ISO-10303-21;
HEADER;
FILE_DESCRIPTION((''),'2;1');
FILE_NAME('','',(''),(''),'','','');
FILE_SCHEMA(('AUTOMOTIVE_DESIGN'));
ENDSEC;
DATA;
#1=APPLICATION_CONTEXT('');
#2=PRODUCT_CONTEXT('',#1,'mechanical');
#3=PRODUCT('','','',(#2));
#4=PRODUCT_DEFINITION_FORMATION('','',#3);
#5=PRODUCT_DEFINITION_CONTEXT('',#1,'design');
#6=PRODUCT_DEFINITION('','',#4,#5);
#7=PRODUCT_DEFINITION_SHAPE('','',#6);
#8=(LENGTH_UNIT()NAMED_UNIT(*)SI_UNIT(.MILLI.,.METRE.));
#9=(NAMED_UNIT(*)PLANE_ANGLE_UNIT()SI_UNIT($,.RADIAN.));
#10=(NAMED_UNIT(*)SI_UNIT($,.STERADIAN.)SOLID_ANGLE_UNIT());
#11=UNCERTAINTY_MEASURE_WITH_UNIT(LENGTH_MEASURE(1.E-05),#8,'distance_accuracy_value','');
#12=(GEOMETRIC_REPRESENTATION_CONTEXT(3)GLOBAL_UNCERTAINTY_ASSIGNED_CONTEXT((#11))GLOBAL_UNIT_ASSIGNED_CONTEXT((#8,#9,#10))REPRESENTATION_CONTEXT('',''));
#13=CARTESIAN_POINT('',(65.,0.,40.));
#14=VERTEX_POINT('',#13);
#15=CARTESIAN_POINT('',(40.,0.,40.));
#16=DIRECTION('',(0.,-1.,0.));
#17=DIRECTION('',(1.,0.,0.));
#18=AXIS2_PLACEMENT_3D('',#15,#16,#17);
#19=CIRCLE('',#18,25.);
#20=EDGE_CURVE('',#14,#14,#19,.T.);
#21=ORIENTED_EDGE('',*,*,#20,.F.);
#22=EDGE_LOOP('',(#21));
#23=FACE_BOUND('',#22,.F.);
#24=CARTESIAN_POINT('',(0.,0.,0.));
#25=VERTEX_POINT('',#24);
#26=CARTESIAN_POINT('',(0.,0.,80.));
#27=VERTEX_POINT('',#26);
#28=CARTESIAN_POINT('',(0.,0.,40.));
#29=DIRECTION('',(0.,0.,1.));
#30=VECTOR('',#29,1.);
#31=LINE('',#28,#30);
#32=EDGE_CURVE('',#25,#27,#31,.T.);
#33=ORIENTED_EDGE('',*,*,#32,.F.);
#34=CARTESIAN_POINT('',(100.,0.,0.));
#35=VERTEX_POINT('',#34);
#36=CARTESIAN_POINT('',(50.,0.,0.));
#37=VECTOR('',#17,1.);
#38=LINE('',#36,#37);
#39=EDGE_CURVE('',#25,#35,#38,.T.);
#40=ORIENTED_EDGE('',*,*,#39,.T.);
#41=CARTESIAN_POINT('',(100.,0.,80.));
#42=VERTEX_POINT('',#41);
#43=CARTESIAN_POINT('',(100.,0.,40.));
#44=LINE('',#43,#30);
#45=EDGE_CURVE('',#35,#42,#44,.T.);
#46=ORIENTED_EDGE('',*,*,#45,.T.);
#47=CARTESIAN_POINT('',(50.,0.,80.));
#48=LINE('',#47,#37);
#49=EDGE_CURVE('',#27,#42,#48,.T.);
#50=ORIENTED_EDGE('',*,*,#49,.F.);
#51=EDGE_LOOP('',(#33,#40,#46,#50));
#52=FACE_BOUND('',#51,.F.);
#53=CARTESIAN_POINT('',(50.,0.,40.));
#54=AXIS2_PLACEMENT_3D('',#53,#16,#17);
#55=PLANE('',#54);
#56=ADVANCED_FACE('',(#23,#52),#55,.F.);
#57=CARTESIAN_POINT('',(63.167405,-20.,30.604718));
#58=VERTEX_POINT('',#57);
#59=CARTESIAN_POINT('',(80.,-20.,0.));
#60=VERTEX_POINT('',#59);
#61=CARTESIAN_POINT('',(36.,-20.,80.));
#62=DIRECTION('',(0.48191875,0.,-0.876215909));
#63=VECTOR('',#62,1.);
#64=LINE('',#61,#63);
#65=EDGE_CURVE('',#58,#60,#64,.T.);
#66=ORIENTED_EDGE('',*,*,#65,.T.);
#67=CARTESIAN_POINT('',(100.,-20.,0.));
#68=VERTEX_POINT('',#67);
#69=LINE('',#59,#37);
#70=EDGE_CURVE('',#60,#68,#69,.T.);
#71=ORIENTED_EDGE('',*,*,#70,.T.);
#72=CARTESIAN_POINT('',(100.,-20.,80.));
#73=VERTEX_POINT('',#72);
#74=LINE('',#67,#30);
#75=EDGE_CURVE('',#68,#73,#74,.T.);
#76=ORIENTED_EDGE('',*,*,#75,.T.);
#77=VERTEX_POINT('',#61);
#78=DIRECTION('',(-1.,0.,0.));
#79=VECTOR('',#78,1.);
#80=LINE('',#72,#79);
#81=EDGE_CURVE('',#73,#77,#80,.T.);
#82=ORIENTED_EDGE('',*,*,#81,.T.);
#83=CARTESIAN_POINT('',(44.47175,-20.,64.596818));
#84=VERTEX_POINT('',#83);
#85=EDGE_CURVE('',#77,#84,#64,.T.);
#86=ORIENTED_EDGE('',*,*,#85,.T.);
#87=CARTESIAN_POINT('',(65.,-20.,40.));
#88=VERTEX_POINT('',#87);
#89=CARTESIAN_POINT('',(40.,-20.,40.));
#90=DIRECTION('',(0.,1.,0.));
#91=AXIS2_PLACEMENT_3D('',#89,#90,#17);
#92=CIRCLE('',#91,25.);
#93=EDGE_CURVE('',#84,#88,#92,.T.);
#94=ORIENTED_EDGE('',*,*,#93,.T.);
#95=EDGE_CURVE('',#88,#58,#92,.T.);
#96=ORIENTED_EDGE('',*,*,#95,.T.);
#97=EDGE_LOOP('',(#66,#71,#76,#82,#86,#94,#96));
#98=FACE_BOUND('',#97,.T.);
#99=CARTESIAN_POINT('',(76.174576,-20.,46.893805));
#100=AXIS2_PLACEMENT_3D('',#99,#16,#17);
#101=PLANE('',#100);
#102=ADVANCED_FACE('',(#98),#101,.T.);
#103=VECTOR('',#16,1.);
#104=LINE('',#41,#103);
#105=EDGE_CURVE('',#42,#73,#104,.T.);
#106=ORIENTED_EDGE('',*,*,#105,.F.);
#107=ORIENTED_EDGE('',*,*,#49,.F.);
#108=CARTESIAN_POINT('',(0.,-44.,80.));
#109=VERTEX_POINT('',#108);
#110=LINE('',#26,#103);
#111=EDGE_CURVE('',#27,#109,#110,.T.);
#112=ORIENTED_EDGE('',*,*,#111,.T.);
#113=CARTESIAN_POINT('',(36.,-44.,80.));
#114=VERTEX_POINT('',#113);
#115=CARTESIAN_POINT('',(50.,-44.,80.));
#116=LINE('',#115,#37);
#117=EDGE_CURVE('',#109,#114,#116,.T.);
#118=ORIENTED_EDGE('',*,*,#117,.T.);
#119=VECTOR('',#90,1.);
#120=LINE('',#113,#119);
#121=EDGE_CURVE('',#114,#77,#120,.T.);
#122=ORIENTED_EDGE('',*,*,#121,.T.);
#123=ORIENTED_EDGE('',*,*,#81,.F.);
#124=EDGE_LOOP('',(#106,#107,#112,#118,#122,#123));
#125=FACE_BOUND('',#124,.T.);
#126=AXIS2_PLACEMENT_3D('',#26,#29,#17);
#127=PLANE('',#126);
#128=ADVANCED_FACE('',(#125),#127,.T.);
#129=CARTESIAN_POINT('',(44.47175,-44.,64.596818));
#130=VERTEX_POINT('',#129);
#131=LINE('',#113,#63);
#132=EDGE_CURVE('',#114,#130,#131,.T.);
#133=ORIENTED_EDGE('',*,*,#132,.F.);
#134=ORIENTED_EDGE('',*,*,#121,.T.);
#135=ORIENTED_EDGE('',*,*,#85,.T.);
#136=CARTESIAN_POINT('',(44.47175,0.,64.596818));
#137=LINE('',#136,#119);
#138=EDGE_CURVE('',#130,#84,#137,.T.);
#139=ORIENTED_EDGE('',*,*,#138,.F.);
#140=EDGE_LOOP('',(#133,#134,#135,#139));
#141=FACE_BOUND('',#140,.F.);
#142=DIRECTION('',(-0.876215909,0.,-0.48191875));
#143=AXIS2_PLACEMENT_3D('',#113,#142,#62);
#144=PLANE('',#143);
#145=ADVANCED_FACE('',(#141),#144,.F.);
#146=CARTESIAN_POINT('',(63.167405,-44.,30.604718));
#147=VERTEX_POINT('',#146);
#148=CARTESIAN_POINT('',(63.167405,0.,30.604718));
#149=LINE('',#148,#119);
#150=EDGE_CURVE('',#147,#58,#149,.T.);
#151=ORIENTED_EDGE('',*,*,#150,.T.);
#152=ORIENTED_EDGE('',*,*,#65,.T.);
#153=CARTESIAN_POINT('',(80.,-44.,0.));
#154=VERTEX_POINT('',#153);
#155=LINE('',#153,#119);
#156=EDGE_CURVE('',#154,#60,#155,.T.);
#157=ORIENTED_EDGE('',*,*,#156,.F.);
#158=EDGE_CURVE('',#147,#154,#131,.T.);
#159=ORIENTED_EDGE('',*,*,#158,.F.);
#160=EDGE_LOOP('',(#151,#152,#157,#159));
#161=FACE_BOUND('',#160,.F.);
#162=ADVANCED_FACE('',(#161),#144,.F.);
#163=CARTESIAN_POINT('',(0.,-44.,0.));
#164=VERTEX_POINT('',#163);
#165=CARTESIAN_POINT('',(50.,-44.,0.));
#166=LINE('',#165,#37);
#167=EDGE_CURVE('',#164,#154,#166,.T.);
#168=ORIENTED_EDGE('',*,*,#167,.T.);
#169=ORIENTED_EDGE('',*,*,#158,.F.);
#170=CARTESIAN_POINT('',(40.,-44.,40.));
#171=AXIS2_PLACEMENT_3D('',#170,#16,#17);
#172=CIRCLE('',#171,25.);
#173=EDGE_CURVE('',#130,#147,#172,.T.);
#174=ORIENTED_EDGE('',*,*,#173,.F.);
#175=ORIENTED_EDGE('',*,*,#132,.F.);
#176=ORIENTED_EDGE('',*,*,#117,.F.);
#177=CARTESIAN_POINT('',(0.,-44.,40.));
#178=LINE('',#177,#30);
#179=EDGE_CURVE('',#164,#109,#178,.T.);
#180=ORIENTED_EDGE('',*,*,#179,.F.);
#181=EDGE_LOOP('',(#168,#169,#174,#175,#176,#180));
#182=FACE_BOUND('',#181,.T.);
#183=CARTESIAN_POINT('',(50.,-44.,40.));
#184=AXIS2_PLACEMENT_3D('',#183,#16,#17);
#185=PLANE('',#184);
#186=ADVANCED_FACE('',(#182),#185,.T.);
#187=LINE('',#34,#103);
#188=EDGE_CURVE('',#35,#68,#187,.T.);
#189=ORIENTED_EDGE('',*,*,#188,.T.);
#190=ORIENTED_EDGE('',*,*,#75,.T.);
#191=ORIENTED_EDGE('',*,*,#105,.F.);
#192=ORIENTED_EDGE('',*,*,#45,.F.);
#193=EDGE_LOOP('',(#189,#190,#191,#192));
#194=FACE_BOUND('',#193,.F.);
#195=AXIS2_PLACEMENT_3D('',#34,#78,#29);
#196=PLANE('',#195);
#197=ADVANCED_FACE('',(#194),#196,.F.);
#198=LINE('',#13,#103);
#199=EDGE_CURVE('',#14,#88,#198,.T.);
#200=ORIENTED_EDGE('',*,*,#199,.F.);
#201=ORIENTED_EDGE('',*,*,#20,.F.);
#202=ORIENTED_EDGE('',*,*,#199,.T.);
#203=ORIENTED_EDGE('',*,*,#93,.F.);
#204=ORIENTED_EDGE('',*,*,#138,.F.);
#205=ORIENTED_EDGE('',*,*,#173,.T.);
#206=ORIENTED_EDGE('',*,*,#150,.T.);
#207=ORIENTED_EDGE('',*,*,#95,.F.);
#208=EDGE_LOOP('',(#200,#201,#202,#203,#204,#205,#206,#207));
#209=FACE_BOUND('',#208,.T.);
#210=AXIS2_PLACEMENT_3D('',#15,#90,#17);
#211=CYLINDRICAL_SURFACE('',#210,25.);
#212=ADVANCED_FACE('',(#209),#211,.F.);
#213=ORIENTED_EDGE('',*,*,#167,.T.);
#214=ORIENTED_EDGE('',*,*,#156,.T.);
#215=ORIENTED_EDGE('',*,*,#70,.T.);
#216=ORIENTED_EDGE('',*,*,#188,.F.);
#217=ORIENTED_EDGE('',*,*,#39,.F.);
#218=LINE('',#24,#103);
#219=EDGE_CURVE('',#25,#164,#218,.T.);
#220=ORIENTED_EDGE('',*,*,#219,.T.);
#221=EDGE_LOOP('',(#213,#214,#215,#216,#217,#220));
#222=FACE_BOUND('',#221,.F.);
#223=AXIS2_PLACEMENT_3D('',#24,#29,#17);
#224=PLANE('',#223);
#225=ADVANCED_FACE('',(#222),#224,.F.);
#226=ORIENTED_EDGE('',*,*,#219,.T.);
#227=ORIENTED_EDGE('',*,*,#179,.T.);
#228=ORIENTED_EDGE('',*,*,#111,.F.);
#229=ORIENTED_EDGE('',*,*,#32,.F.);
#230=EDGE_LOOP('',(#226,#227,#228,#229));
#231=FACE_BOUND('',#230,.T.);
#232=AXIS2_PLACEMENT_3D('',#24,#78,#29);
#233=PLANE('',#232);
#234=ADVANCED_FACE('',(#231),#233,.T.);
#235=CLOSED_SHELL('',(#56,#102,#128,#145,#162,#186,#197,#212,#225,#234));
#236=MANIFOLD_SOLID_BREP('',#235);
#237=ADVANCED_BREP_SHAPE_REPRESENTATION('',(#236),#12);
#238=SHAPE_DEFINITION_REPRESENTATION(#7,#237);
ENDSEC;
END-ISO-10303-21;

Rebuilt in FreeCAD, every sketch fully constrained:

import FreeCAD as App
import Part
import Sketcher


def add_polygon(sketch, points):
    """Adds a closed chain of lines whose ends are joined by coincident constraints."""
    first, n = sketch.GeometryCount, len(points)
    for a, b in zip(points, points[1:] + points[:1]):
        sketch.addGeometry(Part.LineSegment(App.Vector(*a, 0), App.Vector(*b, 0)), False)
    for i in range(n):
        sketch.addConstraint(Sketcher.Constraint("Coincident", first + i, 2, first + (i + 1) % n, 1))

doc = App.newDocument("Part")
params = doc.addObject("Spreadsheet::Sheet", "Params")
for row, (alias, value) in enumerate([
    ("sketch1_diameter", "50 mm"),
    ("sketch1_width", "100 mm"),
    ("sketch1_height", "80 mm"),
    ("pad1_length", "44 mm"),
    ("sketch2_width", "64 mm"),
    ("sketch2_width2", "20 mm"),
    ("sketch2_height", "80 mm"),
    ("pocket1_length", "24 mm"),
], start=1):
    params.set(f"A{row}", alias)
    params.set(f"B{row}", "=" + value)
    params.setAlias(f"B{row}", alias)

body = doc.addObject("PartDesign::Body", "Body")

# Sketch on XZ plane
sketch1 = body.newObject("Sketcher::SketchObject", "Sketch")
sketch1.AttachmentSupport = (doc.getObject("XZ_Plane"), [""])
sketch1.MapMode = "FlatFace"
add_polygon(sketch1, [(0, 80), (0, 0), (100, 0), (100, 80)])  # lines 0-3
sketch1.addGeometry(Part.Circle(App.Vector(40, 40, 0), App.Vector(0, 0, 1), 25), False)  # 4
sketch1.addConstraint(Sketcher.Constraint("Vertical", 0))
sketch1.addConstraint(Sketcher.Constraint("Horizontal", 1))
sketch1.addConstraint(Sketcher.Constraint("Vertical", 2))
sketch1.addConstraint(Sketcher.Constraint("Horizontal", 3))
sketch1.addConstraint(Sketcher.Constraint("Coincident", 0, 2, -1, 1))
sketch1.addConstraint(Sketcher.Constraint("Diameter", 4, 50.0))
sketch1.addConstraint(Sketcher.Constraint("DistanceX", 1, 1, 1, 2, 100.0))
sketch1.addConstraint(Sketcher.Constraint("DistanceY", 0, 2, 0, 1, 80.0))
sketch1.addConstraint(Sketcher.Constraint("DistanceX", -1, 1, 4, 3, 40.0))
sketch1.addConstraint(Sketcher.Constraint("DistanceY", -1, 1, 4, 3, 40.0))
sketch1.setExpression("Constraints[9]", "Params.sketch1_diameter")
sketch1.setExpression("Constraints[10]", "Params.sketch1_width")
sketch1.setExpression("Constraints[11]", "Params.sketch1_height")
pad1 = body.newObject("PartDesign::Pad", "Pad")
pad1.Profile = sketch1
pad1.setExpression("Length", "Params.pad1_length")

# Sketch on XZ plane
sketch2 = body.newObject("Sketcher::SketchObject", "Sketch001")
sketch2.AttachmentSupport = (doc.getObject("XZ_Plane"), [""])
sketch2.MapMode = "FlatFace"
sketch2.AttachmentOffset = App.Placement(App.Vector(0, 0, 44), App.Rotation())
add_polygon(sketch2, [(100, 80), (36, 80), (80, 0), (100, 0)])  # lines 0-3
sketch2.addConstraint(Sketcher.Constraint("Horizontal", 0))
sketch2.addConstraint(Sketcher.Constraint("Horizontal", 2))
sketch2.addConstraint(Sketcher.Constraint("Vertical", 3))
sketch2.addConstraint(Sketcher.Constraint("PointOnObject", 1, 2, -1))
sketch2.addConstraint(Sketcher.Constraint("DistanceX", 0, 2, 0, 1, 64.0))
sketch2.addConstraint(Sketcher.Constraint("DistanceX", 2, 1, 2, 2, 20.0))
sketch2.addConstraint(Sketcher.Constraint("DistanceY", 3, 1, 3, 2, 80.0))
sketch2.addConstraint(Sketcher.Constraint("DistanceX", -1, 1, 0, 2, 36.0))
sketch2.setExpression("Constraints[8]", "Params.sketch2_width")
sketch2.setExpression("Constraints[9]", "Params.sketch2_width2")
sketch2.setExpression("Constraints[10]", "Params.sketch2_height")
pocket1 = body.newObject("PartDesign::Pocket", "Pocket")
pocket1.Profile = sketch2
pocket1.setExpression("Length", "Params.pocket1_length")

doc.recompute()
